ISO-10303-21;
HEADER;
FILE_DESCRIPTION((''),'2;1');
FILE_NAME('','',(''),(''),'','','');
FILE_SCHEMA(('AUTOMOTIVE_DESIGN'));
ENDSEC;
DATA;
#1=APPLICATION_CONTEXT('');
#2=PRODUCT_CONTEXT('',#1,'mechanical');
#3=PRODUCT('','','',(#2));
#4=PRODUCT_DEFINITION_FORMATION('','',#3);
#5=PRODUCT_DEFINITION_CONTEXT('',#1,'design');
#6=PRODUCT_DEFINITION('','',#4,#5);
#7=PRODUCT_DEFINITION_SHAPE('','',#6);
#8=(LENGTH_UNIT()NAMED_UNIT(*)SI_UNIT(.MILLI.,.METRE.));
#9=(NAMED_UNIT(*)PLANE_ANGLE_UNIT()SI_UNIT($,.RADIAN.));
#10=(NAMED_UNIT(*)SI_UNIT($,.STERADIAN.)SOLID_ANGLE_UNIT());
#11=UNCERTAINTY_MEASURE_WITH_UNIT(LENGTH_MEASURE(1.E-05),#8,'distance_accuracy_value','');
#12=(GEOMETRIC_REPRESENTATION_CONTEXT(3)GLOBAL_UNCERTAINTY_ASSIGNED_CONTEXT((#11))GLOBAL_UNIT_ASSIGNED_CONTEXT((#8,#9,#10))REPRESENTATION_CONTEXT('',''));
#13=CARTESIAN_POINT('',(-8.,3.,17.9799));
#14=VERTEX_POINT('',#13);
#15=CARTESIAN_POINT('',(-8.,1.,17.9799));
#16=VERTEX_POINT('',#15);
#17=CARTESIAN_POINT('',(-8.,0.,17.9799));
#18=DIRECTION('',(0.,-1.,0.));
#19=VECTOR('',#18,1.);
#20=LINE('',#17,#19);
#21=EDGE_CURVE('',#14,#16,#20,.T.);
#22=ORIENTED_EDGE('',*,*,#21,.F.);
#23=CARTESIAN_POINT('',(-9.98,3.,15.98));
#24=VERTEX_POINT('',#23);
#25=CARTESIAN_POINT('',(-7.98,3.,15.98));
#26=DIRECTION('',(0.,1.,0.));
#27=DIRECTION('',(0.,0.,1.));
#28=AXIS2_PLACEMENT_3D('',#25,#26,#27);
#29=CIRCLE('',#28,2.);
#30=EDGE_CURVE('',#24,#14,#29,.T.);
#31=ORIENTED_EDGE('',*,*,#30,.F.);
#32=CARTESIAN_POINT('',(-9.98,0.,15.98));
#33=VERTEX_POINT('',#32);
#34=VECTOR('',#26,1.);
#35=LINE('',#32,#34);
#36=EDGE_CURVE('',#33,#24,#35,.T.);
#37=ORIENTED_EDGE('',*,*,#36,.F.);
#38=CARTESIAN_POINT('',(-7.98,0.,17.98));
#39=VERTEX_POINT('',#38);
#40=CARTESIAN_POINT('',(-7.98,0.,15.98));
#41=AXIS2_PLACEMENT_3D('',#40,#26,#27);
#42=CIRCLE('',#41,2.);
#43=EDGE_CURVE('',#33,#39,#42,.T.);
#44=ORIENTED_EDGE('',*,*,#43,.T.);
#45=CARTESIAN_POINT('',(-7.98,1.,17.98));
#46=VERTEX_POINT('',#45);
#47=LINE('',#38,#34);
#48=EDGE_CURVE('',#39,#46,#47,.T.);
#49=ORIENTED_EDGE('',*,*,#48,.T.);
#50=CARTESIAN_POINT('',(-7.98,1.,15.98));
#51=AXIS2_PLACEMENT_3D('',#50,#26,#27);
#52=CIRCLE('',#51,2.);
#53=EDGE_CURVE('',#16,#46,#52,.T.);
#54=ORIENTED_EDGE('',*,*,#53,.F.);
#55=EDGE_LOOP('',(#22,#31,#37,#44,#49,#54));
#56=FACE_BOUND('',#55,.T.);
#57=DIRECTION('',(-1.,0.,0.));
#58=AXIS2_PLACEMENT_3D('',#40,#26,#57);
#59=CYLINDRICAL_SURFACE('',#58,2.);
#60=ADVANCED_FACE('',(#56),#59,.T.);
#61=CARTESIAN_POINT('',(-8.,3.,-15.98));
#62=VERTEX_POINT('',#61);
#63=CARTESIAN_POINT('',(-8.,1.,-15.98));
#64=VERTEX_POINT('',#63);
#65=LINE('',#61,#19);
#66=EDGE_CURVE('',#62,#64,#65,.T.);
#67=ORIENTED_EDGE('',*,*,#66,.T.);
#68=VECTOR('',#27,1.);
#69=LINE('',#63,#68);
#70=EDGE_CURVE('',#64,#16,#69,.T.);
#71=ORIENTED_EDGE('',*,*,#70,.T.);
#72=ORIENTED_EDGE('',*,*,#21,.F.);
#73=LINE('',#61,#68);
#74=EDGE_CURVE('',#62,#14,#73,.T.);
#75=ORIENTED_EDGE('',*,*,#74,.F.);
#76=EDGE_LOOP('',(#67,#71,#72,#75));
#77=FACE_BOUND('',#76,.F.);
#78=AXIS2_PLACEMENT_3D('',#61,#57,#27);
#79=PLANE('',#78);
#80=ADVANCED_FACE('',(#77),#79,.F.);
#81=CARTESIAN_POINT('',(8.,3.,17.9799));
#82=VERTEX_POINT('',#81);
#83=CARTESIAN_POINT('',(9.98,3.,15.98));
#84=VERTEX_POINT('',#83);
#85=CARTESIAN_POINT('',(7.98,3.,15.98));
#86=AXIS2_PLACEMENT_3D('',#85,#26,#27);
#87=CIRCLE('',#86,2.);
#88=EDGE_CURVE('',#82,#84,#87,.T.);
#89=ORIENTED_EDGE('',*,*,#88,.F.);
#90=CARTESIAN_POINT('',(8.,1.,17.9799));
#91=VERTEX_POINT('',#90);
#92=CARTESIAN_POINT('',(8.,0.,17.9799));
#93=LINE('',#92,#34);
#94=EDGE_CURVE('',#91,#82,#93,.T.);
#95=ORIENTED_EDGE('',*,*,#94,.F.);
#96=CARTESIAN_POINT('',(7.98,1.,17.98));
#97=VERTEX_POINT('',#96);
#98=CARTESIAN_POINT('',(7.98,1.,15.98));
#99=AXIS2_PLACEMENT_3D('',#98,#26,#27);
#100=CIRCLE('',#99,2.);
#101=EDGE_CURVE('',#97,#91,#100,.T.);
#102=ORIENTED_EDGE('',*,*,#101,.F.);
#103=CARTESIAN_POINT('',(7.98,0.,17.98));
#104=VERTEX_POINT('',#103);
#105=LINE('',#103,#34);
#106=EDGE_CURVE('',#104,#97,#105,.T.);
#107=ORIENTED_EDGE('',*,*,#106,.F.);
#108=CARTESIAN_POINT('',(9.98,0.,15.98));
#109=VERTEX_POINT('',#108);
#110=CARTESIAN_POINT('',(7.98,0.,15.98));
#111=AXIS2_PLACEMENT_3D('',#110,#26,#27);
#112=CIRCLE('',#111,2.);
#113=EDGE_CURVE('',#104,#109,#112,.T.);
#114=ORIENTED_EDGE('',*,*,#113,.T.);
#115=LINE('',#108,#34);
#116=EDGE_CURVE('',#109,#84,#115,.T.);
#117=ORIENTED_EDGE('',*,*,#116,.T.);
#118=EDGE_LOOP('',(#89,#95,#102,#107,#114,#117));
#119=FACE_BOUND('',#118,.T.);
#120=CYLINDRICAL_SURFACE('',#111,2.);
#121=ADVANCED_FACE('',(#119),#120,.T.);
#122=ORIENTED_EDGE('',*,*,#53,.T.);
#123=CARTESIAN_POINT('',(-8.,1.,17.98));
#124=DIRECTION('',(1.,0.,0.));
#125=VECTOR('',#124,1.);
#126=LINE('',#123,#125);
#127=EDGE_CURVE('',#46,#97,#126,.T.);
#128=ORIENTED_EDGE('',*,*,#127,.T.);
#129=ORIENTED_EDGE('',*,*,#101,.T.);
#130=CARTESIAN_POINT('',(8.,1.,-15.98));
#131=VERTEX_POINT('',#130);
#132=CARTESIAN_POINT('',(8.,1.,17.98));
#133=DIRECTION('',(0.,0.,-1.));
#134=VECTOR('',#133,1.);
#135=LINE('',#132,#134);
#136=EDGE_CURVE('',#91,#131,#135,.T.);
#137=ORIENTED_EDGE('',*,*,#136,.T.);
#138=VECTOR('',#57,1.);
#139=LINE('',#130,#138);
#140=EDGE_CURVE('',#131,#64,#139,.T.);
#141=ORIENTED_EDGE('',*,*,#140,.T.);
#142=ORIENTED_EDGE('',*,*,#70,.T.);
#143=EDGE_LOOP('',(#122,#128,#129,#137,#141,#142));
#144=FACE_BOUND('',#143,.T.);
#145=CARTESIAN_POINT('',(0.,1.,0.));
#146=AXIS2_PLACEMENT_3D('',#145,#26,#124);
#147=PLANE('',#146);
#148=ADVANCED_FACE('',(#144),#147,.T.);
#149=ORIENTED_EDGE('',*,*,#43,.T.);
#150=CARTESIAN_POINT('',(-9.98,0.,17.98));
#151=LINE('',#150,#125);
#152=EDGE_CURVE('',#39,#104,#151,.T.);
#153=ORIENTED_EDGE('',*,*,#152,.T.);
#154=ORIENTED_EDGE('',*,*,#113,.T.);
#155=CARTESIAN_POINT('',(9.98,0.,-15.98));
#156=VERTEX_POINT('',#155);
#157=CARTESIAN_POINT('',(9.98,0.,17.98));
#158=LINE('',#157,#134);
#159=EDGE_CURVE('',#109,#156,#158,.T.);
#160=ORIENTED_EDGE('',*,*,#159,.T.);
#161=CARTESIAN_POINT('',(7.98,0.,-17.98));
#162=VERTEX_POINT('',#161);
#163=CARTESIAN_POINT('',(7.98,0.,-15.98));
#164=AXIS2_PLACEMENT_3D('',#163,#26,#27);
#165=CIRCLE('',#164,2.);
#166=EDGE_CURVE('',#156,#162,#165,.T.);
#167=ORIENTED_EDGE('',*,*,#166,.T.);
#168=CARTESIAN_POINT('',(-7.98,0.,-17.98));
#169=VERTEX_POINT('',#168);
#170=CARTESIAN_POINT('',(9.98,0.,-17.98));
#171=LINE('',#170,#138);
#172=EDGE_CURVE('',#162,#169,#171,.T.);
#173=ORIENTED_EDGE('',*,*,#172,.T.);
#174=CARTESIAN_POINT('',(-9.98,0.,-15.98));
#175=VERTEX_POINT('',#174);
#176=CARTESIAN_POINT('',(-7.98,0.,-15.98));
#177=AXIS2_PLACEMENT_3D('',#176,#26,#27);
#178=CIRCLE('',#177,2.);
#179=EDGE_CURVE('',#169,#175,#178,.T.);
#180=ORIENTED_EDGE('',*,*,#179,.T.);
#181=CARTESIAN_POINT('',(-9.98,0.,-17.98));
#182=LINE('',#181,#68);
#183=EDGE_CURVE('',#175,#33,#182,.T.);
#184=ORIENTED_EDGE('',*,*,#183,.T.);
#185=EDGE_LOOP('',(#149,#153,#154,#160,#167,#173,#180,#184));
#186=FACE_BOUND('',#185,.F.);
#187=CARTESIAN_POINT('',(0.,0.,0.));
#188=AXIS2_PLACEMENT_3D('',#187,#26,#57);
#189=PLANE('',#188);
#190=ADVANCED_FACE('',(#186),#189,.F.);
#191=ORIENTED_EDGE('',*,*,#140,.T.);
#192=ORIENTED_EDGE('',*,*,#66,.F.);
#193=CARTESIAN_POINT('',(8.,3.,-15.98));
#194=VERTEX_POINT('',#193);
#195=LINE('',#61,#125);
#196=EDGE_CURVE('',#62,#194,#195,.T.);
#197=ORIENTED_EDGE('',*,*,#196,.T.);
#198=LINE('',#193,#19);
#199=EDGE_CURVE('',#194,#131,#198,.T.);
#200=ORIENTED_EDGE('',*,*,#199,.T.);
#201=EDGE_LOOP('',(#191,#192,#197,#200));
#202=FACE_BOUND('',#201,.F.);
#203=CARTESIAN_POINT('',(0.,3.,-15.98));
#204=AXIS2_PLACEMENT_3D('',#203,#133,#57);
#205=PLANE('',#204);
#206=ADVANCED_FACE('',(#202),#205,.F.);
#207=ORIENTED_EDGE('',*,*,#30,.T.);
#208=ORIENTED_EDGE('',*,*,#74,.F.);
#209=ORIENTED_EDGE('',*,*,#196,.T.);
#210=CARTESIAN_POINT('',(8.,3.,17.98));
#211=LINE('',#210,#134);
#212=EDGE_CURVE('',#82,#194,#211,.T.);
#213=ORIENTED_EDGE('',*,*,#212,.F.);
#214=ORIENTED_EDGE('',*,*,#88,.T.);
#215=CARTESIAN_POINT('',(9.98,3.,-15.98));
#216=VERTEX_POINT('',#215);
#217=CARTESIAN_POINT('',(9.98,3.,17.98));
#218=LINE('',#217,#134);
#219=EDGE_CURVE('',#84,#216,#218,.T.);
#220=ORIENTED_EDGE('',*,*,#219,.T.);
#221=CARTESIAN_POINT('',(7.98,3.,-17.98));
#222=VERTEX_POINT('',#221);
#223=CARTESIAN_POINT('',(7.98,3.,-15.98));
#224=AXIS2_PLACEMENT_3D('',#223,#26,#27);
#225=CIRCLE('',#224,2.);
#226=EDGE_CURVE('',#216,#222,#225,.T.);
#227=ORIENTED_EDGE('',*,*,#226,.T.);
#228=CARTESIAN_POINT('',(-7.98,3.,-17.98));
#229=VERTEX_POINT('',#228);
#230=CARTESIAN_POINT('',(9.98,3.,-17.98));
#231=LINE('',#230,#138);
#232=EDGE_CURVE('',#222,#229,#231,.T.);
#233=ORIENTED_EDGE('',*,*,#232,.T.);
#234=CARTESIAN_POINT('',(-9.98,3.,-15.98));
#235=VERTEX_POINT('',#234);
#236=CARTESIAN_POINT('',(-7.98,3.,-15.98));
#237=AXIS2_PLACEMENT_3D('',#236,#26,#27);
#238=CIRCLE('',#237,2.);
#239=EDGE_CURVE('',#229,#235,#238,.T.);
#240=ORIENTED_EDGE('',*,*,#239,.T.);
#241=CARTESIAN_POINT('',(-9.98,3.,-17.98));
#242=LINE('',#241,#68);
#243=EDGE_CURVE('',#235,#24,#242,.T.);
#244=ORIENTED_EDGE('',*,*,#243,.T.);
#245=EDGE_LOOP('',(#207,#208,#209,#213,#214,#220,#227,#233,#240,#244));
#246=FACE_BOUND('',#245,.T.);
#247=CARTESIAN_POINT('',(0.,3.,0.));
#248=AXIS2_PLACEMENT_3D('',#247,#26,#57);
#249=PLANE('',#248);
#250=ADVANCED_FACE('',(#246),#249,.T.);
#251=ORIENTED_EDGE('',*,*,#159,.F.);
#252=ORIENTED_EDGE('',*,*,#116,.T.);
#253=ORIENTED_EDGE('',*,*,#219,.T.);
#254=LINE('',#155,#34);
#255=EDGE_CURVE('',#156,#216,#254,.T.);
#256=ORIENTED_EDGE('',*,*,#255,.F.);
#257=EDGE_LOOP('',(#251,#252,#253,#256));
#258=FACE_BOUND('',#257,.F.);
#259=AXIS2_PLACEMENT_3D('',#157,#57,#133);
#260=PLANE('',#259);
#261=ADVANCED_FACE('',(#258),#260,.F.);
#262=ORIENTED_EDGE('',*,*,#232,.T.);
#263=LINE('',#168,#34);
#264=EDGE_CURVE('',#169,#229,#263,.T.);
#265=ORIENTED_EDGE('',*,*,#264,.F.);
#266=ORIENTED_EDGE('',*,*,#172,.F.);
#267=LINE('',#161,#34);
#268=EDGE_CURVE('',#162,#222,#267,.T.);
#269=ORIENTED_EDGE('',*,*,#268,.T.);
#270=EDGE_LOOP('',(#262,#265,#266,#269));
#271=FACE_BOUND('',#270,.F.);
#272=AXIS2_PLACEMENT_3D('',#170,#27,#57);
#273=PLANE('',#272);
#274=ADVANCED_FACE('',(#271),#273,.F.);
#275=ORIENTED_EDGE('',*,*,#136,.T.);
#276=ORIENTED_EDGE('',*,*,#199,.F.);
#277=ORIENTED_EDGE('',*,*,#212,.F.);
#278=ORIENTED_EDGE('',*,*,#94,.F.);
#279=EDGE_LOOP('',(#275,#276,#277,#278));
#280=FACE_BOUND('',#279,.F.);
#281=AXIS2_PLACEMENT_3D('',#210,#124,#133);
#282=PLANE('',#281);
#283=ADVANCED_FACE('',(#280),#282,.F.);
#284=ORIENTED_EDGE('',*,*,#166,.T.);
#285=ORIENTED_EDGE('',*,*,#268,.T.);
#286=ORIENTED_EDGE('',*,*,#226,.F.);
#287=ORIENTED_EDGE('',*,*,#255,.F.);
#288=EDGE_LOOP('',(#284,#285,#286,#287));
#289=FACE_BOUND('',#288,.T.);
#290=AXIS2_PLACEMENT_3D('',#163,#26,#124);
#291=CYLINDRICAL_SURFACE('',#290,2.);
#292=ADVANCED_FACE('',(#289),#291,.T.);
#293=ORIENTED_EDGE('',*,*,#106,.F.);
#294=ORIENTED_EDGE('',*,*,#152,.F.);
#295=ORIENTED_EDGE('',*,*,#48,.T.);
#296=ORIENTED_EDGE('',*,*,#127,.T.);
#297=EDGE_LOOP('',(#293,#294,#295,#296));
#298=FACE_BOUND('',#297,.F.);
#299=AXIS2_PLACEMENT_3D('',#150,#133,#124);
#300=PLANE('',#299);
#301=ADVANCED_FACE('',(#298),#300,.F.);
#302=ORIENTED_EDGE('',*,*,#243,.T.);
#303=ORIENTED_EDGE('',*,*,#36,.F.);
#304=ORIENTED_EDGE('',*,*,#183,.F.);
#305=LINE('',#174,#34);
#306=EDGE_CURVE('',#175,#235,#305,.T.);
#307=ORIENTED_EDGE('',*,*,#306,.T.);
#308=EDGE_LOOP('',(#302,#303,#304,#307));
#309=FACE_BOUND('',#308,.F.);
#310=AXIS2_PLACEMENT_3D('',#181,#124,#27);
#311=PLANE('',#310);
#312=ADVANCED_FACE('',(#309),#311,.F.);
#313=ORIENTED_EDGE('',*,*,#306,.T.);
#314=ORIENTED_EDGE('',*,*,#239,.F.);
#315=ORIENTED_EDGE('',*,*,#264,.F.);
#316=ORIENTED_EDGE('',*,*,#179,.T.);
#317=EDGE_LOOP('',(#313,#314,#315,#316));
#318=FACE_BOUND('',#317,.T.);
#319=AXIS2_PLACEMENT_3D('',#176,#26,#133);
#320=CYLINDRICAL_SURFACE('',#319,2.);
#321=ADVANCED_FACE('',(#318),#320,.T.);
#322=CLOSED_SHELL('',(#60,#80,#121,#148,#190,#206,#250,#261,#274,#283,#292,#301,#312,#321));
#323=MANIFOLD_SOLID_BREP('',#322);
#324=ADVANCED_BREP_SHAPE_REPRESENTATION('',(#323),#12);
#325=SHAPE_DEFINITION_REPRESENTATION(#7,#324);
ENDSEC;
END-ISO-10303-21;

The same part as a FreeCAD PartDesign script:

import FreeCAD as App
import Part
import Sketcher
Q = App.Units.Quantity


def edges_at(feature, points):
    """Names of the edges that pass closest to the given points."""
    edges = feature.Shape.Edges
    near = lambda p: min(range(len(edges)), key=lambda i: edges[i].distToShape(Part.Vertex(*p))[0])
    return sorted({f"Edge{near(p) + 1}" for p in points})


def add_polygon(sketch, points):
    """Adds a closed chain of lines whose ends are joined by coincident constraints."""
    first, n = sketch.GeometryCount, len(points)
    for a, b in zip(points, points[1:] + points[:1]):
        sketch.addGeometry(Part.LineSegment(App.Vector(*a, 0), App.Vector(*b, 0)), False)
    for i in range(n):
        sketch.addConstraint(Sketcher.Constraint("Coincident", first + i, 2, first + (i + 1) % n, 1))

doc = App.newDocument("Part")
body = doc.addObject("PartDesign::Body", "Body")

sketch1 = body.newObject("Sketcher::SketchObject", "Sketch")
sketch1.AttachmentSupport = (doc.getObject("XZ_Plane"), [""])
sketch1.MapMode = "FlatFace"
add_polygon(sketch1, [(-10, -18), (-10, 18), (10, 18), (10, -18)])
sketch1.addConstraint([
    Sketcher.Constraint("Vertical", 0),
    Sketcher.Constraint("Horizontal", 1),
    Sketcher.Constraint("Vertical", 2),
    Sketcher.Constraint("Horizontal", 3),
    Sketcher.Constraint("Symmetric", 0, 2, 2, 2, -1, 1),
    Sketcher.Constraint("DistanceX", 1, 1, 1, 2, Q("19.96 mm")),
    Sketcher.Constraint("DistanceY", 0, 1, 0, 2, Q("35.96 mm")),
])
pad1 = body.newObject("PartDesign::Pad", "Pad")
pad1.Profile = sketch1
pad1.Length = 3
pad1.Reversed = True

sketch2 = body.newObject("Sketcher::SketchObject", "Sketch001")
sketch2.AttachmentSupport = (doc.getObject("XZ_Plane"), [""])
sketch2.MapMode = "FlatFace"
sketch2.AttachmentOffset = App.Placement(App.Vector(0, 0, -3), App.Rotation())
add_polygon(sketch2, [(-8, -16), (-8, 18), (8, 18), (8, -16)])
sketch2.addConstraint([
    Sketcher.Constraint("Vertical", 0),
    Sketcher.Constraint("Horizontal", 1),
    Sketcher.Constraint("Vertical", 2),
    Sketcher.Constraint("Horizontal", 3),
    Sketcher.Constraint("DistanceX", 1, 1, 1, 2, Q("16 mm")),
    Sketcher.Constraint("DistanceX", 0, 2, -1, 1, Q("8 mm")),
    Sketcher.Constraint("DistanceY", 0, 1, 0, 2, Q("33.96 mm")),
    Sketcher.Constraint("DistanceY", -1, 1, 0, 2, Q("17.98 mm")),
])
pocket1 = body.newObject("PartDesign::Pocket", "Pocket")
pocket1.Profile = sketch2
pocket1.Length = 2
pocket1.Reversed = True
doc.recompute()

fillet = body.newObject("PartDesign::Fillet", "Fillet")
fillet.Base = (pocket1, edges_at(pocket1, [(-9.98, 1.5, 17.98)]))
fillet.Radius = 2
doc.recompute()

fillet2 = body.newObject("PartDesign::Fillet", "Fillet001")
fillet2.Base = (fillet, edges_at(fillet, [(9.98, 1.5, 17.98)]))
fillet2.Radius = 2
doc.recompute()

fillet3 = body.newObject("PartDesign::Fillet", "Fillet002")
fillet3.Base = (fillet2, edges_at(fillet2, [(9.98, 1.5, -17.98)]))
fillet3.Radius = 2
doc.recompute()

fillet4 = body.newObject("PartDesign::Fillet", "Fillet003")
fillet4.Base = (fillet3, edges_at(fillet3, [(-9.98, 1.5, -17.98)]))
fillet4.Radius = 2

doc.recompute()
